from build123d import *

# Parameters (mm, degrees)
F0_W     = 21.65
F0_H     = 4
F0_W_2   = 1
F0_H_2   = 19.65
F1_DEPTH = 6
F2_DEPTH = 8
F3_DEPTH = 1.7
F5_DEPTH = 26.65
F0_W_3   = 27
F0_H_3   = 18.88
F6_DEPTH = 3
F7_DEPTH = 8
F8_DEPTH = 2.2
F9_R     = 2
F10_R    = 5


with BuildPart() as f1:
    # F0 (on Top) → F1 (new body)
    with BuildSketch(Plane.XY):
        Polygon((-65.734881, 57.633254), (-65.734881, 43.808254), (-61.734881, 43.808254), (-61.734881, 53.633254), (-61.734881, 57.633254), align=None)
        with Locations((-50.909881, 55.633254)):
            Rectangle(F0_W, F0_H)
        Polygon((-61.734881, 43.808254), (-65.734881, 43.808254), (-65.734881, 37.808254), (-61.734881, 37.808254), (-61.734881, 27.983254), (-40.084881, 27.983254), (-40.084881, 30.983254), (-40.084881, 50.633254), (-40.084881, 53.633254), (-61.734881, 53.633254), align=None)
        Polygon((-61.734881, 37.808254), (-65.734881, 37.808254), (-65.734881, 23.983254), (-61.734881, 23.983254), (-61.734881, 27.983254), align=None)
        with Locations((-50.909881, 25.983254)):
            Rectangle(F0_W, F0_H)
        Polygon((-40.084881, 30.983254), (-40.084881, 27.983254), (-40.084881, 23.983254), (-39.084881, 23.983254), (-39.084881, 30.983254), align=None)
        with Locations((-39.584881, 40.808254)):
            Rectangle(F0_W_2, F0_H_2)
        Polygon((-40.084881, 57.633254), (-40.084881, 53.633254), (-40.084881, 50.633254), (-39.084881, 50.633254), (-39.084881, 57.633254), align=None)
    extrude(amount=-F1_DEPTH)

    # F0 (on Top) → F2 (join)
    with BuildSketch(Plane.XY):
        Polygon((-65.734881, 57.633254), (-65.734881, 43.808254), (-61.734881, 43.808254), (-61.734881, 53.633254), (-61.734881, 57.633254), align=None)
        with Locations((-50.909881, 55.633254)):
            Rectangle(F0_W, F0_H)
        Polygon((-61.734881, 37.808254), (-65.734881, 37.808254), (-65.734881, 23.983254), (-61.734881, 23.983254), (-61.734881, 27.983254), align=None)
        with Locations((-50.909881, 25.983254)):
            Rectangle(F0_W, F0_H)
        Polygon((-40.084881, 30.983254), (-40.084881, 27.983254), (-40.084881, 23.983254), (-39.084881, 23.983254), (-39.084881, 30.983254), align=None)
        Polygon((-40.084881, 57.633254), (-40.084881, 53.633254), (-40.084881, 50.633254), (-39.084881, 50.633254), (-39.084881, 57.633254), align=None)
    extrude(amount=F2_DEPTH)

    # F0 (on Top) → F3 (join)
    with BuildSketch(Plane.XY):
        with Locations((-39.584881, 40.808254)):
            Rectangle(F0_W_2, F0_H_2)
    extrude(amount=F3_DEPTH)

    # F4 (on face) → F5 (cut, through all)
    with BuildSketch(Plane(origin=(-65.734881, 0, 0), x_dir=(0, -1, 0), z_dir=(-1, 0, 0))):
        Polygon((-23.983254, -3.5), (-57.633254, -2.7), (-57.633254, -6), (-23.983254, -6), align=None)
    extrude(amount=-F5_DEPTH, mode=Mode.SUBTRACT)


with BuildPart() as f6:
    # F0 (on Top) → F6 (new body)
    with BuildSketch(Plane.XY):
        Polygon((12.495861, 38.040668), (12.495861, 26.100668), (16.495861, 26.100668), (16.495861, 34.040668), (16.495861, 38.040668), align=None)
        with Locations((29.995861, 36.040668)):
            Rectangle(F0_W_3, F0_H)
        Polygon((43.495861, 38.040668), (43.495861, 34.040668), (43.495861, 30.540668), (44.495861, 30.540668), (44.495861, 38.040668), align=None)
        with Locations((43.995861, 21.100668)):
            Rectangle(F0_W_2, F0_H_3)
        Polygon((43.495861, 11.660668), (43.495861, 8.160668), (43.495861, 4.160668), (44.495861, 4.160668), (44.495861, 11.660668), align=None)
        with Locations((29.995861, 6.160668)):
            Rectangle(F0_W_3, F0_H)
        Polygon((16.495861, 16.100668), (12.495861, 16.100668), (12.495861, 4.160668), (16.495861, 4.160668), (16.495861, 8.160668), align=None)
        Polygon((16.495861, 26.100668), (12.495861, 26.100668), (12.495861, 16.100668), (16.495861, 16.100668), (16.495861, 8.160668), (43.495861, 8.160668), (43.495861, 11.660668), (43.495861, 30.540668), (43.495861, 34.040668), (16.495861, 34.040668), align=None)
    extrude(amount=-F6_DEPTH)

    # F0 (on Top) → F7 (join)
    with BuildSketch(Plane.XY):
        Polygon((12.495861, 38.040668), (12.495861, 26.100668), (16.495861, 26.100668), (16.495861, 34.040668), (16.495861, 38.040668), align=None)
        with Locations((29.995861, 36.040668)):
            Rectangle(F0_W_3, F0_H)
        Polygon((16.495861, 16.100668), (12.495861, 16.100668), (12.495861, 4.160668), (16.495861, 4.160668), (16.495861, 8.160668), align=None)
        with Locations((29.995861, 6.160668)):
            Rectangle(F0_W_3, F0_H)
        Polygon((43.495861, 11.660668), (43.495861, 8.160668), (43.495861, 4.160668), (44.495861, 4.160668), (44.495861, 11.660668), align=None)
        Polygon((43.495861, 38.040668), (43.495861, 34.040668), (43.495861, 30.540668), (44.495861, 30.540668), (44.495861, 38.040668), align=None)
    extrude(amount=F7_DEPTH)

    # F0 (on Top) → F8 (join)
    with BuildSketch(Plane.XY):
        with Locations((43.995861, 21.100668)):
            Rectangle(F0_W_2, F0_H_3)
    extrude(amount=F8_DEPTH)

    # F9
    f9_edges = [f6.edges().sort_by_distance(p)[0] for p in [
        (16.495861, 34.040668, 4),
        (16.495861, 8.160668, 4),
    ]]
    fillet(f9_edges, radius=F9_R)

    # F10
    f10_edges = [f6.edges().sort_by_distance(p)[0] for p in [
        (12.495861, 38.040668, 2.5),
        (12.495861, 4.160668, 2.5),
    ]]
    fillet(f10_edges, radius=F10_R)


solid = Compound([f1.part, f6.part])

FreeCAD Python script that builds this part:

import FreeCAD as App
import Part
import Sketcher
Q = App.Units.Quantity


def edges_at(feature, points):
    """Names of the edges that pass closest to the given points."""
    edges = feature.Shape.Edges
    near = lambda p: min(range(len(edges)), key=lambda i: edges[i].distToShape(Part.Vertex(*p))[0])
    return sorted({f"Edge{near(p) + 1}" for p in points})

doc = App.newDocument("Part")
params = doc.addObject("Spreadsheet::Sheet", "Params")
for row, (alias, value) in enumerate([
    ("sketch1_width", "26.65 mm"),
    ("sketch1_height", "33.65 mm"),
    ("pad1_length", "6 mm"),
    ("sketch2_width", "4 mm"),
    ("sketch2_width2", "1 mm"),
    ("sketch2_height", "3 mm"),
    ("sketch2_height2", "7 mm"),
    ("sketch2_width3", "21.65 mm"),
    ("pad2_length", "8 mm"),
    ("sketch3_width", "1 mm"),
    ("sketch3_height", "19.65 mm"),
    ("pad3_length", "1.7 mm"),
    ("sketch4_height", "3.3 mm"),
    ("sketch4_height2", "2.5 mm"),
    ("sketch4_width", "33.65 mm"),
    ("sketch5_width", "32 mm"),
    ("sketch5_height", "33.88 mm"),
    ("pad4_length", "3 mm"),
    ("sketch6_width", "4 mm"),
    ("sketch6_width2", "27 mm"),
    ("sketch6_width3", "1 mm"),
    ("sketch6_height", "3.5 mm"),
    ("sketch6_height2", "7.5 mm"),
    ("pad5_length", "8 mm"),
    ("sketch7_width", "1 mm"),
    ("sketch7_height", "18.88 mm"),
    ("pad6_length", "2.2 mm"),
    ("fillet_radius", "2 mm"),
    ("fillet2_radius", "5 mm"),
], start=1):
    params.set(f"A{row}", alias)
    params.set(f"B{row}", "=" + value)
    params.setAlias(f"B{row}", alias)

body = doc.addObject("PartDesign::Body", "Body")

# Sketch on XY plane
sketch1 = doc.addObject("Sketcher::SketchObject", "Sketch")
body.addObject(sketch1)
sketch1.AttachmentSupport = (doc.XY_Plane, [""])
sketch1.MapMode = "FlatFace"
sketch1.addGeometry([
    Part.LineSegment(App.Vector(-65.734881, 57.633254, 0), App.Vector(-65.734881, 23.983254, 0)),
    Part.LineSegment(App.Vector(-65.734881, 23.983254, 0), App.Vector(-39.084881, 23.983254, 0)),
    Part.LineSegment(App.Vector(-39.084881, 23.983254, 0), App.Vector(-39.084881, 57.633254, 0)),
    Part.LineSegment(App.Vector(-39.084881, 57.633254, 0), App.Vector(-65.734881, 57.633254, 0)),
], False)
sketch1.addConstraint([
    Sketcher.Constraint("Coincident", 0, 2, 1, 1),
    Sketcher.Constraint("Coincident", 1, 2, 2, 1),
    Sketcher.Constraint("Coincident", 2, 2, 3, 1),
    Sketcher.Constraint("Coincident", 3, 2, 0, 1),
    Sketcher.Constraint("Vertical", 0),
    Sketcher.Constraint("Horizontal", 1),
    Sketcher.Constraint("Vertical", 2),
    Sketcher.Constraint("Horizontal", 3),
    Sketcher.Constraint("DistanceX", 1, 1, 1, 2, Q("26.65 mm")),
    Sketcher.Constraint("DistanceY", 0, 2, 0, 1, Q("33.65 mm")),
    Sketcher.Constraint("DistanceX", 0, 2, -1, 1, Q("65.734881 mm")),
    Sketcher.Constraint("DistanceY", -1, 1, 0, 2, Q("23.983254 mm")),
])
sketch1.setExpression("Constraints[8]", "Params.sketch1_width")
sketch1.setExpression("Constraints[9]", "Params.sketch1_height")
pad1 = doc.addObject("PartDesign::Pad", "Pad")
body.addObject(pad1)
pad1.Profile = sketch1
pad1.setExpression("Length", "Params.pad1_length")
pad1.Reversed = True

# Sketch on XY plane
sketch2 = doc.addObject("Sketcher::SketchObject", "Sketch001")
body.addObject(sketch2)
sketch2.AttachmentSupport = (doc.XY_Plane, [""])
sketch2.MapMode = "FlatFace"
sketch2.addGeometry([
    Part.LineSegment(App.Vector(-65.734881, 57.633254, 0), App.Vector(-65.734881, 43.808254, 0)),  # 0
    Part.LineSegment(App.Vector(-65.734881, 43.808254, 0), App.Vector(-61.734881, 43.808254, 0)),  # 1
    Part.LineSegment(App.Vector(-61.734881, 43.808254, 0), App.Vector(-61.734881, 53.633254, 0)),  # 2
    Part.LineSegment(App.Vector(-61.734881, 53.633254, 0), App.Vector(-40.084881, 53.633254, 0)),  # 3
    Part.LineSegment(App.Vector(-40.084881, 53.633254, 0), App.Vector(-40.084881, 50.633254, 0)),  # 4
    Part.LineSegment(App.Vector(-40.084881, 50.633254, 0), App.Vector(-39.084881, 50.633254, 0)),  # 5
    Part.LineSegment(App.Vector(-39.084881, 50.633254, 0), App.Vector(-39.084881, 57.633254, 0)),  # 6
    Part.LineSegment(App.Vector(-39.084881, 57.633254, 0), App.Vector(-65.734881, 57.633254, 0)),  # 7
    Part.LineSegment(App.Vector(-61.734881, 37.808254, 0), App.Vector(-65.734881, 37.808254, 0)),  # 8
    Part.LineSegment(App.Vector(-65.734881, 37.808254, 0), App.Vector(-65.734881, 23.983254, 0)),  # 9
    Part.LineSegment(App.Vector(-65.734881, 23.983254, 0), App.Vector(-39.084881, 23.983254, 0)),  # 10
    Part.LineSegment(App.Vector(-39.084881, 23.983254, 0), App.Vector(-39.084881, 30.983254, 0)),  # 11
    Part.LineSegment(App.Vector(-39.084881, 30.983254, 0), App.Vector(-40.084881, 30.983254, 0)),  # 12
    Part.LineSegment(App.Vector(-40.084881, 30.983254, 0), App.Vector(-40.084881, 27.983254, 0)),  # 13
    Part.LineSegment(App.Vector(-40.084881, 27.983254, 0), App.Vector(-61.734881, 27.983254, 0)),  # 14
    Part.LineSegment(App.Vector(-61.734881, 27.983254, 0), App.Vector(-61.734881, 37.808254, 0)),  # 15
], False)
sketch2.addConstraint([
    Sketcher.Constraint("Coincident", 0, 2, 1, 1),
    Sketcher.Constraint("Coincident", 1, 2, 2, 1),
    Sketcher.Constraint("Coincident", 2, 2, 3, 1),
    Sketcher.Constraint("Coincident", 3, 2, 4, 1),
    Sketcher.Constraint("Coincident", 4, 2, 5, 1),
    Sketcher.Constraint("Coincident", 5, 2, 6, 1),
    Sketcher.Constraint("Coincident", 6, 2, 7, 1),
    Sketcher.Constraint("Coincident", 7, 2, 0, 1),
    Sketcher.Constraint("Coincident", 8, 2, 9, 1),
    Sketcher.Constraint("Coincident", 9, 2, 10, 1),
    Sketcher.Constraint("Coincident", 10, 2, 11, 1),
    Sketcher.Constraint("Coincident", 11, 2, 12, 1),
    Sketcher.Constraint("Coincident", 12, 2, 13, 1),
    Sketcher.Constraint("Coincident", 13, 2, 14, 1),
    Sketcher.Constraint("Coincident", 14, 2, 15, 1),
    Sketcher.Constraint("Coincident", 15, 2, 8, 1),
    Sketcher.Constraint("Vertical", 0),
    Sketcher.Constraint("Horizontal", 1),
    Sketcher.Constraint("Vertical", 2),
    Sketcher.Constraint("Horizontal", 3),
    Sketcher.Constraint("Vertical", 4),
    Sketcher.Constraint("Horizontal", 5),
    Sketcher.Constraint("Vertical", 6),
    Sketcher.Constraint("Horizontal", 7),
    Sketcher.Constraint("Horizontal", 8),
    Sketcher.Constraint("Vertical", 9),
    Sketcher.Constraint("Horizontal", 10),
    Sketcher.Constraint("Vertical", 11),
    Sketcher.Constraint("Horizontal", 12),
    Sketcher.Constraint("Vertical", 13),
    Sketcher.Constraint("Horizontal", 14),
    Sketcher.Constraint("Vertical", 15),
    Sketcher.Constraint("Vertical", 7, 2, 8, 2),
    Sketcher.Constraint("Vertical", 6, 2, 10, 2),
    Sketcher.Constraint("Vertical", 4, 2, 12, 2),
    Sketcher.Constraint("Vertical", 2, 2, 14, 2),
    Sketcher.Constraint("Equal", 0, 9),
    Sketcher.Constraint("Equal", 6, 11),
    Sketcher.Constraint("Equal", 4, 13),
    Sketcher.Constraint("DistanceX", 1, 1, 1, 2, Q("4 mm")),
    Sketcher.Constraint("DistanceX", 5, 1, 5, 2, Q("1 mm")),
    Sketcher.Constraint("DistanceY", 4, 2, 4, 1, Q("3 mm")),
    Sketcher.Constraint("DistanceY", 6, 1, 6, 2, Q("7 mm")),
    Sketcher.Constraint("DistanceY", 8, 2, 0, 2, Q("6 mm")),
    Sketcher.Constraint("DistanceX", 3, 1, 3, 2, Q("21.65 mm")),
    Sketcher.Constraint("DistanceY", 0, 2, 0, 1, Q("13.825 mm")),
    Sketcher.Constraint("DistanceX", 0, 2, -1, 1, Q("65.734881 mm")),
    Sketcher.Constraint("DistanceY", -1, 1, 0, 2, Q("43.808254 mm")),
])
sketch2.setExpression("Constraints[39]", "Params.sketch2_width")
sketch2.setExpression("Constraints[40]", "Params.sketch2_width2")
sketch2.setExpression("Constraints[41]", "Params.sketch2_height")
sketch2.setExpression("Constraints[42]", "Params.sketch2_height2")
sketch2.setExpression("Constraints[44]", "Params.sketch2_width3")
pad2 = doc.addObject("PartDesign::Pad", "Pad001")
body.addObject(pad2)
pad2.Profile = sketch2
pad2.setExpression("Length", "Params.pad2_length")

# Sketch on XY plane
sketch3 = doc.addObject("Sketcher::SketchObject", "Sketch002")
body.addObject(sketch3)
sketch3.AttachmentSupport = (doc.XY_Plane, [""])
sketch3.MapMode = "FlatFace"
sketch3.addGeometry([
    Part.LineSegment(App.Vector(-40.084881, 50.633254, 0), App.Vector(-40.084881, 30.983254, 0)),
    Part.LineSegment(App.Vector(-40.084881, 30.983254, 0), App.Vector(-39.084881, 30.983254, 0)),
    Part.LineSegment(App.Vector(-39.084881, 30.983254, 0), App.Vector(-39.084881, 50.633254, 0)),
    Part.LineSegment(App.Vector(-39.084881, 50.633254, 0), App.Vector(-40.084881, 50.633254, 0)),
], False)
sketch3.addConstraint([
    Sketcher.Constraint("Coincident", 0, 2, 1, 1),
    Sketcher.Constraint("Coincident", 1, 2, 2, 1),
    Sketcher.Constraint("Coincident", 2, 2, 3, 1),
    Sketcher.Constraint("Coincident", 3, 2, 0, 1),
    Sketcher.Constraint("Vertical", 0),
    Sketcher.Constraint("Horizontal", 1),
    Sketcher.Constraint("Vertical", 2),
    Sketcher.Constraint("Horizontal", 3),
    Sketcher.Constraint("DistanceX", 1, 1, 1, 2, Q("1 mm")),
    Sketcher.Constraint("DistanceY", 0, 2, 0, 1, Q("19.65 mm")),
    Sketcher.Constraint("DistanceX", 0, 2, -1, 1, Q("40.084881 mm")),
    Sketcher.Constraint("DistanceY", -1, 1, 0, 2, Q("30.983254 mm")),
])
sketch3.setExpression("Constraints[8]", "Params.sketch3_width")
sketch3.setExpression("Constraints[9]", "Params.sketch3_height")
pad3 = doc.addObject("PartDesign::Pad", "Pad002")
body.addObject(pad3)
pad3.Profile = sketch3
pad3.setExpression("Length", "Params.pad3_length")

# Sketch on YZ plane
sketch4 = doc.addObject("Sketcher::SketchObject", "Sketch003")
body.addObject(sketch4)
sketch4.AttachmentSupport = (doc.YZ_Plane, [""])
sketch4.MapMode = "FlatFace"
sketch4.AttachmentOffset = App.Placement(App.Vector(0, 0, -65.734881), App.Rotation())
sketch4.addGeometry([
    Part.LineSegment(App.Vector(23.983254, -3.5, 0), App.Vector(57.633254, -2.7, 0)),
    Part.LineSegment(App.Vector(57.633254, -2.7, 0), App.Vector(57.633254, -6, 0)),
    Part.LineSegment(App.Vector(57.633254, -6, 0), App.Vector(23.983254, -6, 0)),
    Part.LineSegment(App.Vector(23.983254, -6, 0), App.Vector(23.983254, -3.5, 0)),
], False)
sketch4.addConstraint([
    Sketcher.Constraint("Coincident", 0, 2, 1, 1),
    Sketcher.Constraint("Coincident", 1, 2, 2, 1),
    Sketcher.Constraint("Coincident", 2, 2, 3, 1),
    Sketcher.Constraint("Coincident", 3, 2, 0, 1),
    Sketcher.Constraint("Vertical", 1),
    Sketcher.Constraint("Horizontal", 2),
    Sketcher.Constraint("Vertical", 3),
    Sketcher.Constraint("DistanceY", 1, 2, 1, 1, Q("3.3 mm")),
    Sketcher.Constraint("DistanceY", 3, 1, 3, 2, Q("2.5 mm")),
    Sketcher.Constraint("DistanceY", 1, 2, -1, 1, Q("6 mm")),
    Sketcher.Constraint("DistanceX", 2, 2, 2, 1, Q("33.65 mm")),
    Sketcher.Constraint("DistanceX", -1, 1, 0, 2, Q("57.633254 mm")),
])
sketch4.setExpression("Constraints[7]", "Params.sketch4_height")
sketch4.setExpression("Constraints[8]", "Params.sketch4_height2")
sketch4.setExpression("Constraints[10]", "Params.sketch4_width")
pocket1 = doc.addObject("PartDesign::Pocket", "Pocket")
body.addObject(pocket1)
pocket1.Profile = sketch4
pocket1.Type = "ThroughAll"
pocket1.Reversed = True
body2 = doc.addObject("PartDesign::Body", "Body001")

# Sketch on XY plane
sketch5 = doc.addObject("Sketcher::SketchObject", "Sketch004")
body2.addObject(sketch5)
sketch5.AttachmentSupport = (doc.getObject("XY_Plane001"), [""])
sketch5.MapMode = "FlatFace"
sketch5.addGeometry([
    Part.LineSegment(App.Vector(12.495861, 38.040668, 0), App.Vector(12.495861, 4.160668, 0)),
    Part.LineSegment(App.Vector(12.495861, 4.160668, 0), App.Vector(44.495861, 4.160668, 0)),
    Part.LineSegment(App.Vector(44.495861, 4.160668, 0), App.Vector(44.495861, 38.040668, 0)),
    Part.LineSegment(App.Vector(44.495861, 38.040668, 0), App.Vector(12.495861, 38.040668, 0)),
], False)
sketch5.addConstraint([
    Sketcher.Constraint("Coincident", 0, 2, 1, 1),
    Sketcher.Constraint("Coincident", 1, 2, 2, 1),
    Sketcher.Constraint("Coincident", 2, 2, 3, 1),
    Sketcher.Constraint("Coincident", 3, 2, 0, 1),
    Sketcher.Constraint("Vertical", 0),
    Sketcher.Constraint("Horizontal", 1),
    Sketcher.Constraint("Vertical", 2),
    Sketcher.Constraint("Horizontal", 3),
    Sketcher.Constraint("DistanceX", 1, 1, 1, 2, Q("32 mm")),
    Sketcher.Constraint("DistanceY", 0, 2, 0, 1, Q("33.88 mm")),
    Sketcher.Constraint("DistanceX", -1, 1, 0, 2, Q("12.495861 mm")),
    Sketcher.Constraint("DistanceY", -1, 1, 0, 2, Q("4.160668 mm")),
])
sketch5.setExpression("Constraints[8]", "Params.sketch5_width")
sketch5.setExpression("Constraints[9]", "Params.sketch5_height")
pad4 = doc.addObject("PartDesign::Pad", "Pad003")
body2.addObject(pad4)
pad4.Profile = sketch5
pad4.setExpression("Length", "Params.pad4_length")
pad4.Reversed = True

# Sketch on XY plane
sketch6 = doc.addObject("Sketcher::SketchObject", "Sketch005")
body2.addObject(sketch6)
sketch6.AttachmentSupport = (doc.getObject("XY_Plane001"), [""])
sketch6.MapMode = "FlatFace"
sketch6.addGeometry([
    Part.LineSegment(App.Vector(12.495861, 38.040668, 0), App.Vector(12.495861, 26.100668, 0)),  # 0
    Part.LineSegment(App.Vector(12.495861, 26.100668, 0), App.Vector(16.495861, 26.100668, 0)),  # 1
    Part.LineSegment(App.Vector(16.495861, 26.100668, 0), App.Vector(16.495861, 34.040668, 0)),  # 2
    Part.LineSegment(App.Vector(16.495861, 34.040668, 0), App.Vector(43.495861, 34.040668, 0)),  # 3
    Part.LineSegment(App.Vector(43.495861, 34.040668, 0), App.Vector(43.495861, 30.540668, 0)),  # 4
    Part.LineSegment(App.Vector(43.495861, 30.540668, 0), App.Vector(44.495861, 30.540668, 0)),  # 5
    Part.LineSegment(App.Vector(44.495861, 30.540668, 0), App.Vector(44.495861, 38.040668, 0)),  # 6
    Part.LineSegment(App.Vector(44.495861, 38.040668, 0), App.Vector(12.495861, 38.040668, 0)),  # 7
    Part.LineSegment(App.Vector(16.495861, 16.100668, 0), App.Vector(12.495861, 16.100668, 0)),  # 8
    Part.LineSegment(App.Vector(12.495861, 16.100668, 0), App.Vector(12.495861, 4.160668, 0)),  # 9
    Part.LineSegment(App.Vector(12.495861, 4.160668, 0), App.Vector(44.495861, 4.160668, 0)),  # 10
    Part.LineSegment(App.Vector(44.495861, 4.160668, 0), App.Vector(44.495861, 11.660668, 0)),  # 11
    Part.LineSegment(App.Vector(44.495861, 11.660668, 0), App.Vector(43.495861, 11.660668, 0)),  # 12
    Part.LineSegment(App.Vector(43.495861, 11.660668, 0), App.Vector(43.495861, 8.160668, 0)),  # 13
    Part.LineSegment(App.Vector(43.495861, 8.160668, 0), App.Vector(16.495861, 8.160668, 0)),  # 14
    Part.LineSegment(App.Vector(16.495861, 8.160668, 0), App.Vector(16.495861, 16.100668, 0)),  # 15
], False)
sketch6.addConstraint([
    Sketcher.Constraint("Coincident", 0, 2, 1, 1),
    Sketcher.Constraint("Coincident", 1, 2, 2, 1),
    Sketcher.Constraint("Coincident", 2, 2, 3, 1),
    Sketcher.Constraint("Coincident", 3, 2, 4, 1),
    Sketcher.Constraint("Coincident", 4, 2, 5, 1),
    Sketcher.Constraint("Coincident", 5, 2, 6, 1),
    Sketcher.Constraint("Coincident", 6, 2, 7, 1),
    Sketcher.Constraint("Coincident", 7, 2, 0, 1),
    Sketcher.Constraint("Coincident", 8, 2, 9, 1),
    Sketcher.Constraint("Coincident", 9, 2, 10, 1),
    Sketcher.Constraint("Coincident", 10, 2, 11, 1),
    Sketcher.Constraint("Coincident", 11, 2, 12, 1),
    Sketcher.Constraint("Coincident", 12, 2, 13, 1),
    Sketcher.Constraint("Coincident", 13, 2, 14, 1),
    Sketcher.Constraint("Coincident", 14, 2, 15, 1),
    Sketcher.Constraint("Coincident", 15, 2, 8, 1),
    Sketcher.Constraint("Vertical", 0),
    Sketcher.Constraint("Horizontal", 1),
    Sketcher.Constraint("Vertical", 2),
    Sketcher.Constraint("Horizontal", 3),
    Sketcher.Constraint("Vertical", 4),
    Sketcher.Constraint("Horizontal", 5),
    Sketcher.Constraint("Vertical", 6),
    Sketcher.Constraint("Horizontal", 7),
    Sketcher.Constraint("Horizontal", 8),
    Sketcher.Constraint("Vertical", 9),
    Sketcher.Constraint("Horizontal", 10),
    Sketcher.Constraint("Vertical", 11),
    Sketcher.Constraint("Horizontal", 12),
    Sketcher.Constraint("Vertical", 13),
    Sketcher.Constraint("Horizontal", 14),
    Sketcher.Constraint("Vertical", 15),
    Sketcher.Constraint("Vertical", 7, 2, 8, 2),
    Sketcher.Constraint("Vertical", 6, 2, 10, 2),
    Sketcher.Constraint("Vertical", 4, 2, 12, 2),
    Sketcher.Constraint("Vertical", 2, 2, 14, 2),
    Sketcher.Constraint("Equal", 0, 9),
    Sketcher.Constraint("Equal", 6, 11),
    Sketcher.Constraint("Equal", 4, 13),
    Sketcher.Constraint("DistanceX", 1, 1, 1, 2, Q("4 mm")),
    Sketcher.Constraint("DistanceX", 3, 1, 3, 2, Q("27 mm")),
    Sketcher.Constraint("DistanceX", 5, 1, 5, 2, Q("1 mm")),
    Sketcher.Constraint("DistanceY", 4, 2, 4, 1, Q("3.5 mm")),
    Sketcher.Constraint("DistanceY", 6, 1, 6, 2, Q("7.5 mm")),
    Sketcher.Constraint("DistanceY", 8, 2, 0, 2, Q("10 mm")),
    Sketcher.Constraint("DistanceY", 0, 2, 0, 1, Q("11.94 mm")),
    Sketcher.Constraint("DistanceX", -1, 1, 0, 2, Q("12.495861 mm")),
    Sketcher.Constraint("DistanceY", -1, 1, 4, 2, Q("30.540668 mm")),
])
sketch6.setExpression("Constraints[39]", "Params.sketch6_width")
sketch6.setExpression("Constraints[40]", "Params.sketch6_width2")
sketch6.setExpression("Constraints[41]", "Params.sketch6_width3")
sketch6.setExpression("Constraints[42]", "Params.sketch6_height")
sketch6.setExpression("Constraints[43]", "Params.sketch6_height2")
pad5 = doc.addObject("PartDesign::Pad", "Pad004")
body2.addObject(pad5)
pad5.Profile = sketch6
pad5.setExpression("Length", "Params.pad5_length")

# Sketch on XY plane
sketch7 = doc.addObject("Sketcher::SketchObject", "Sketch006")
body2.addObject(sketch7)
sketch7.AttachmentSupport = (doc.getObject("XY_Plane001"), [""])
sketch7.MapMode = "FlatFace"
sketch7.addGeometry([
    Part.LineSegment(App.Vector(43.495861, 30.540668, 0), App.Vector(43.495861, 11.660668, 0)),
    Part.LineSegment(App.Vector(43.495861, 11.660668, 0), App.Vector(44.495861, 11.660668, 0)),
    Part.LineSegment(App.Vector(44.495861, 11.660668, 0), App.Vector(44.495861, 30.540668, 0)),
    Part.LineSegment(App.Vector(44.495861, 30.540668, 0), App.Vector(43.495861, 30.540668, 0)),
], False)
sketch7.addConstraint([
    Sketcher.Constraint("Coincident", 0, 2, 1, 1),
    Sketcher.Constraint("Coincident", 1, 2, 2, 1),
    Sketcher.Constraint("Coincident", 2, 2, 3, 1),
    Sketcher.Constraint("Coincident", 3, 2, 0, 1),
    Sketcher.Constraint("Vertical", 0),
    Sketcher.Constraint("Horizontal", 1),
    Sketcher.Constraint("Vertical", 2),
    Sketcher.Constraint("Horizontal", 3),
    Sketcher.Constraint("DistanceX", 1, 1, 1, 2, Q("1 mm")),
    Sketcher.Constraint("DistanceY", 0, 2, 0, 1, Q("18.88 mm")),
    Sketcher.Constraint("DistanceX", -1, 1, 0, 2, Q("43.495861 mm")),
    Sketcher.Constraint("DistanceY", -1, 1, 2, 2, Q("30.540668 mm")),
])
sketch7.setExpression("Constraints[8]", "Params.sketch7_width")
sketch7.setExpression("Constraints[9]", "Params.sketch7_height")
pad6 = doc.addObject("PartDesign::Pad", "Pad005")
body2.addObject(pad6)
pad6.Profile = sketch7
pad6.setExpression("Length", "Params.pad6_length")
doc.recompute()

fillet = doc.addObject("PartDesign::Fillet", "Fillet")
body2.addObject(fillet)
fillet.Base = (pad6, edges_at(pad6, [(16.496, 34.041, 4), (16.496, 8.161, 4)]))
fillet.setExpression("Radius", "Params.fillet_radius")
doc.recompute()

fillet2 = doc.addObject("PartDesign::Fillet", "Fillet001")
body2.addObject(fillet2)
fillet2.Base = (fillet, edges_at(fillet, [(12.496, 38.041, 2.5), (12.496, 4.161, 2.5)]))
fillet2.setExpression("Radius", "Params.fillet2_radius")

doc.recompute()
